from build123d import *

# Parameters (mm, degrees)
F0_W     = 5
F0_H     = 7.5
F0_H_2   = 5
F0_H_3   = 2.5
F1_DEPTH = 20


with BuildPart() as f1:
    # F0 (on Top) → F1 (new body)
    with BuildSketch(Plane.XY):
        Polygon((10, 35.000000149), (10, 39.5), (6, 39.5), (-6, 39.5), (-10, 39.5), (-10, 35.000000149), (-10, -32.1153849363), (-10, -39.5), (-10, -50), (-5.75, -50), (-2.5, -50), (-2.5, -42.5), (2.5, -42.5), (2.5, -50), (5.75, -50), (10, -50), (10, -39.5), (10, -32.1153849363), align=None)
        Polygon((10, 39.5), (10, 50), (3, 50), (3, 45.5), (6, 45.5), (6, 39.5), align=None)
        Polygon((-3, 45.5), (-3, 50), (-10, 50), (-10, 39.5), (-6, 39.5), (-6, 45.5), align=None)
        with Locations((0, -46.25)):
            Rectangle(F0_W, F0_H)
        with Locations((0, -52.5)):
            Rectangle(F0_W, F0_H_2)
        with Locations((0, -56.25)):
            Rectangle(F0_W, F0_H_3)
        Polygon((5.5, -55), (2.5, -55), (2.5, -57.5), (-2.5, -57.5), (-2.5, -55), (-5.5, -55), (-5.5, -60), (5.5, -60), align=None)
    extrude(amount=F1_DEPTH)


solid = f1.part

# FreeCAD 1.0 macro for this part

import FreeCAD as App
import Part
import Sketcher
from FreeCAD import Vector


def add_polygon(sketch, points):
    """Adds a closed chain of lines whose ends are joined by coincident constraints."""
    first, n = sketch.GeometryCount, len(points)
    for a, b in zip(points, points[1:] + points[:1]):
        sketch.addGeometry(Part.LineSegment(App.Vector(*a, 0), App.Vector(*b, 0)), False)
    for i in range(n):
        sketch.addConstraint(Sketcher.Constraint("Coincident", first + i, 2, first + (i + 1) % n, 1))

doc = App.newDocument("Part")
params = doc.addObject("Spreadsheet::Sheet", "Params")
for row, (alias, value) in enumerate([
    ("sketch1_width", "12 mm"),
    ("sketch1_width2", "3 mm"),
    ("sketch1_width3", "7 mm"),
    ("sketch1_width4", "11 mm"),
    ("sketch1_height", "6 mm"),
    ("pad1_length", "20 mm"),
], start=1):
    params.set(f"A{row}", alias)
    params.set(f"B{row}", "=" + value)
    params.setAlias(f"B{row}", alias)

body = doc.addObject("PartDesign::Body", "Body")

# Sketch on XY plane
sketch1 = body.newObject("Sketcher::SketchObject", "Sketch")
sketch1.AttachmentSupport = (doc.getObject("XY_Plane"), [""])
sketch1.MapMode = "FlatFace"
add_polygon(sketch1, [(6, 39.5), (-6, 39.5), (-6, 45.5), (-3, 45.5), (-3, 50), (-10, 50), (-10, -50), (-2.5, -50), (-2.5, -55), (-5.5, -55), (-5.5, -60), (5.5, -60), (5.5, -55), (2.5, -55), (2.5, -50), (10, -50), (10, 50), (3, 50), (3, 45.5), (6, 45.5)])  # lines 0-19
sketch1.addConstraint([
    Sketcher.Constraint("Horizontal", 0),
    Sketcher.Constraint("Vertical", 1),
    Sketcher.Constraint("Horizontal", 2),
    Sketcher.Constraint("Vertical", 3),
    Sketcher.Constraint("Horizontal", 4),
    Sketcher.Constraint("Vertical", 5),
    Sketcher.Constraint("Horizontal", 6),
    Sketcher.Constraint("Vertical", 7),
    Sketcher.Constraint("Horizontal", 8),
    Sketcher.Constraint("Vertical", 9),
    Sketcher.Constraint("Horizontal", 10),
    Sketcher.Constraint("Vertical", 11),
    Sketcher.Constraint("Horizontal", 12),
    Sketcher.Constraint("Vertical", 13),
    Sketcher.Constraint("Horizontal", 14),
    Sketcher.Constraint("Vertical", 15),
    Sketcher.Constraint("Horizontal", 16),
    Sketcher.Constraint("Vertical", 17),
    Sketcher.Constraint("Horizontal", 18),
    Sketcher.Constraint("Vertical", 19),
    Sketcher.Constraint("Symmetric", 4, 2, 14, 2, -1, 1),
    Sketcher.Constraint("Symmetric", 8, 2, 11, 2, -2),
    Sketcher.Constraint("Symmetric", 6, 2, 13, 2, -2),
    Sketcher.Constraint("Symmetric", 3, 2, 16, 2, -2),
    Sketcher.Constraint("Symmetric", 1, 2, 18, 2, -2),
    Sketcher.Constraint("Equal", 2, 8),
    Sketcher.Constraint("Equal", 7, 9),
    Sketcher.Constraint("DistanceX", 0, 2, 0, 1, 12.0),
    Sketcher.Constraint("DistanceX", 2, 1, 2, 2, 3.0),
    Sketcher.Constraint("DistanceX", 4, 2, 4, 1, 7.0),
    Sketcher.Constraint("DistanceX", 10, 1, 10, 2, 11.0),
    Sketcher.Constraint("DistanceY", 1, 1, 1, 2, 6.0),
    Sketcher.Constraint("DistanceY", 5, 2, 5, 1, 100.0),
    Sketcher.Constraint("DistanceY", 7, 2, 7, 1, 5.0),
    Sketcher.Constraint("DistanceY", 3, 1, 3, 2, 4.5),
])
sketch1.setExpression("Constraints[47]", "Params.sketch1_width")
sketch1.setExpression("Constraints[48]", "Params.sketch1_width2")
sketch1.setExpression("Constraints[49]", "Params.sketch1_width3")
sketch1.setExpression("Constraints[50]", "Params.sketch1_width4")
sketch1.setExpression("Constraints[51]", "Params.sketch1_height")
pad1 = body.newObject("PartDesign::Pad", "Pad")
pad1.Profile = sketch1
pad1.setExpression("Length", "Params.pad1_length")

doc.recompute()
